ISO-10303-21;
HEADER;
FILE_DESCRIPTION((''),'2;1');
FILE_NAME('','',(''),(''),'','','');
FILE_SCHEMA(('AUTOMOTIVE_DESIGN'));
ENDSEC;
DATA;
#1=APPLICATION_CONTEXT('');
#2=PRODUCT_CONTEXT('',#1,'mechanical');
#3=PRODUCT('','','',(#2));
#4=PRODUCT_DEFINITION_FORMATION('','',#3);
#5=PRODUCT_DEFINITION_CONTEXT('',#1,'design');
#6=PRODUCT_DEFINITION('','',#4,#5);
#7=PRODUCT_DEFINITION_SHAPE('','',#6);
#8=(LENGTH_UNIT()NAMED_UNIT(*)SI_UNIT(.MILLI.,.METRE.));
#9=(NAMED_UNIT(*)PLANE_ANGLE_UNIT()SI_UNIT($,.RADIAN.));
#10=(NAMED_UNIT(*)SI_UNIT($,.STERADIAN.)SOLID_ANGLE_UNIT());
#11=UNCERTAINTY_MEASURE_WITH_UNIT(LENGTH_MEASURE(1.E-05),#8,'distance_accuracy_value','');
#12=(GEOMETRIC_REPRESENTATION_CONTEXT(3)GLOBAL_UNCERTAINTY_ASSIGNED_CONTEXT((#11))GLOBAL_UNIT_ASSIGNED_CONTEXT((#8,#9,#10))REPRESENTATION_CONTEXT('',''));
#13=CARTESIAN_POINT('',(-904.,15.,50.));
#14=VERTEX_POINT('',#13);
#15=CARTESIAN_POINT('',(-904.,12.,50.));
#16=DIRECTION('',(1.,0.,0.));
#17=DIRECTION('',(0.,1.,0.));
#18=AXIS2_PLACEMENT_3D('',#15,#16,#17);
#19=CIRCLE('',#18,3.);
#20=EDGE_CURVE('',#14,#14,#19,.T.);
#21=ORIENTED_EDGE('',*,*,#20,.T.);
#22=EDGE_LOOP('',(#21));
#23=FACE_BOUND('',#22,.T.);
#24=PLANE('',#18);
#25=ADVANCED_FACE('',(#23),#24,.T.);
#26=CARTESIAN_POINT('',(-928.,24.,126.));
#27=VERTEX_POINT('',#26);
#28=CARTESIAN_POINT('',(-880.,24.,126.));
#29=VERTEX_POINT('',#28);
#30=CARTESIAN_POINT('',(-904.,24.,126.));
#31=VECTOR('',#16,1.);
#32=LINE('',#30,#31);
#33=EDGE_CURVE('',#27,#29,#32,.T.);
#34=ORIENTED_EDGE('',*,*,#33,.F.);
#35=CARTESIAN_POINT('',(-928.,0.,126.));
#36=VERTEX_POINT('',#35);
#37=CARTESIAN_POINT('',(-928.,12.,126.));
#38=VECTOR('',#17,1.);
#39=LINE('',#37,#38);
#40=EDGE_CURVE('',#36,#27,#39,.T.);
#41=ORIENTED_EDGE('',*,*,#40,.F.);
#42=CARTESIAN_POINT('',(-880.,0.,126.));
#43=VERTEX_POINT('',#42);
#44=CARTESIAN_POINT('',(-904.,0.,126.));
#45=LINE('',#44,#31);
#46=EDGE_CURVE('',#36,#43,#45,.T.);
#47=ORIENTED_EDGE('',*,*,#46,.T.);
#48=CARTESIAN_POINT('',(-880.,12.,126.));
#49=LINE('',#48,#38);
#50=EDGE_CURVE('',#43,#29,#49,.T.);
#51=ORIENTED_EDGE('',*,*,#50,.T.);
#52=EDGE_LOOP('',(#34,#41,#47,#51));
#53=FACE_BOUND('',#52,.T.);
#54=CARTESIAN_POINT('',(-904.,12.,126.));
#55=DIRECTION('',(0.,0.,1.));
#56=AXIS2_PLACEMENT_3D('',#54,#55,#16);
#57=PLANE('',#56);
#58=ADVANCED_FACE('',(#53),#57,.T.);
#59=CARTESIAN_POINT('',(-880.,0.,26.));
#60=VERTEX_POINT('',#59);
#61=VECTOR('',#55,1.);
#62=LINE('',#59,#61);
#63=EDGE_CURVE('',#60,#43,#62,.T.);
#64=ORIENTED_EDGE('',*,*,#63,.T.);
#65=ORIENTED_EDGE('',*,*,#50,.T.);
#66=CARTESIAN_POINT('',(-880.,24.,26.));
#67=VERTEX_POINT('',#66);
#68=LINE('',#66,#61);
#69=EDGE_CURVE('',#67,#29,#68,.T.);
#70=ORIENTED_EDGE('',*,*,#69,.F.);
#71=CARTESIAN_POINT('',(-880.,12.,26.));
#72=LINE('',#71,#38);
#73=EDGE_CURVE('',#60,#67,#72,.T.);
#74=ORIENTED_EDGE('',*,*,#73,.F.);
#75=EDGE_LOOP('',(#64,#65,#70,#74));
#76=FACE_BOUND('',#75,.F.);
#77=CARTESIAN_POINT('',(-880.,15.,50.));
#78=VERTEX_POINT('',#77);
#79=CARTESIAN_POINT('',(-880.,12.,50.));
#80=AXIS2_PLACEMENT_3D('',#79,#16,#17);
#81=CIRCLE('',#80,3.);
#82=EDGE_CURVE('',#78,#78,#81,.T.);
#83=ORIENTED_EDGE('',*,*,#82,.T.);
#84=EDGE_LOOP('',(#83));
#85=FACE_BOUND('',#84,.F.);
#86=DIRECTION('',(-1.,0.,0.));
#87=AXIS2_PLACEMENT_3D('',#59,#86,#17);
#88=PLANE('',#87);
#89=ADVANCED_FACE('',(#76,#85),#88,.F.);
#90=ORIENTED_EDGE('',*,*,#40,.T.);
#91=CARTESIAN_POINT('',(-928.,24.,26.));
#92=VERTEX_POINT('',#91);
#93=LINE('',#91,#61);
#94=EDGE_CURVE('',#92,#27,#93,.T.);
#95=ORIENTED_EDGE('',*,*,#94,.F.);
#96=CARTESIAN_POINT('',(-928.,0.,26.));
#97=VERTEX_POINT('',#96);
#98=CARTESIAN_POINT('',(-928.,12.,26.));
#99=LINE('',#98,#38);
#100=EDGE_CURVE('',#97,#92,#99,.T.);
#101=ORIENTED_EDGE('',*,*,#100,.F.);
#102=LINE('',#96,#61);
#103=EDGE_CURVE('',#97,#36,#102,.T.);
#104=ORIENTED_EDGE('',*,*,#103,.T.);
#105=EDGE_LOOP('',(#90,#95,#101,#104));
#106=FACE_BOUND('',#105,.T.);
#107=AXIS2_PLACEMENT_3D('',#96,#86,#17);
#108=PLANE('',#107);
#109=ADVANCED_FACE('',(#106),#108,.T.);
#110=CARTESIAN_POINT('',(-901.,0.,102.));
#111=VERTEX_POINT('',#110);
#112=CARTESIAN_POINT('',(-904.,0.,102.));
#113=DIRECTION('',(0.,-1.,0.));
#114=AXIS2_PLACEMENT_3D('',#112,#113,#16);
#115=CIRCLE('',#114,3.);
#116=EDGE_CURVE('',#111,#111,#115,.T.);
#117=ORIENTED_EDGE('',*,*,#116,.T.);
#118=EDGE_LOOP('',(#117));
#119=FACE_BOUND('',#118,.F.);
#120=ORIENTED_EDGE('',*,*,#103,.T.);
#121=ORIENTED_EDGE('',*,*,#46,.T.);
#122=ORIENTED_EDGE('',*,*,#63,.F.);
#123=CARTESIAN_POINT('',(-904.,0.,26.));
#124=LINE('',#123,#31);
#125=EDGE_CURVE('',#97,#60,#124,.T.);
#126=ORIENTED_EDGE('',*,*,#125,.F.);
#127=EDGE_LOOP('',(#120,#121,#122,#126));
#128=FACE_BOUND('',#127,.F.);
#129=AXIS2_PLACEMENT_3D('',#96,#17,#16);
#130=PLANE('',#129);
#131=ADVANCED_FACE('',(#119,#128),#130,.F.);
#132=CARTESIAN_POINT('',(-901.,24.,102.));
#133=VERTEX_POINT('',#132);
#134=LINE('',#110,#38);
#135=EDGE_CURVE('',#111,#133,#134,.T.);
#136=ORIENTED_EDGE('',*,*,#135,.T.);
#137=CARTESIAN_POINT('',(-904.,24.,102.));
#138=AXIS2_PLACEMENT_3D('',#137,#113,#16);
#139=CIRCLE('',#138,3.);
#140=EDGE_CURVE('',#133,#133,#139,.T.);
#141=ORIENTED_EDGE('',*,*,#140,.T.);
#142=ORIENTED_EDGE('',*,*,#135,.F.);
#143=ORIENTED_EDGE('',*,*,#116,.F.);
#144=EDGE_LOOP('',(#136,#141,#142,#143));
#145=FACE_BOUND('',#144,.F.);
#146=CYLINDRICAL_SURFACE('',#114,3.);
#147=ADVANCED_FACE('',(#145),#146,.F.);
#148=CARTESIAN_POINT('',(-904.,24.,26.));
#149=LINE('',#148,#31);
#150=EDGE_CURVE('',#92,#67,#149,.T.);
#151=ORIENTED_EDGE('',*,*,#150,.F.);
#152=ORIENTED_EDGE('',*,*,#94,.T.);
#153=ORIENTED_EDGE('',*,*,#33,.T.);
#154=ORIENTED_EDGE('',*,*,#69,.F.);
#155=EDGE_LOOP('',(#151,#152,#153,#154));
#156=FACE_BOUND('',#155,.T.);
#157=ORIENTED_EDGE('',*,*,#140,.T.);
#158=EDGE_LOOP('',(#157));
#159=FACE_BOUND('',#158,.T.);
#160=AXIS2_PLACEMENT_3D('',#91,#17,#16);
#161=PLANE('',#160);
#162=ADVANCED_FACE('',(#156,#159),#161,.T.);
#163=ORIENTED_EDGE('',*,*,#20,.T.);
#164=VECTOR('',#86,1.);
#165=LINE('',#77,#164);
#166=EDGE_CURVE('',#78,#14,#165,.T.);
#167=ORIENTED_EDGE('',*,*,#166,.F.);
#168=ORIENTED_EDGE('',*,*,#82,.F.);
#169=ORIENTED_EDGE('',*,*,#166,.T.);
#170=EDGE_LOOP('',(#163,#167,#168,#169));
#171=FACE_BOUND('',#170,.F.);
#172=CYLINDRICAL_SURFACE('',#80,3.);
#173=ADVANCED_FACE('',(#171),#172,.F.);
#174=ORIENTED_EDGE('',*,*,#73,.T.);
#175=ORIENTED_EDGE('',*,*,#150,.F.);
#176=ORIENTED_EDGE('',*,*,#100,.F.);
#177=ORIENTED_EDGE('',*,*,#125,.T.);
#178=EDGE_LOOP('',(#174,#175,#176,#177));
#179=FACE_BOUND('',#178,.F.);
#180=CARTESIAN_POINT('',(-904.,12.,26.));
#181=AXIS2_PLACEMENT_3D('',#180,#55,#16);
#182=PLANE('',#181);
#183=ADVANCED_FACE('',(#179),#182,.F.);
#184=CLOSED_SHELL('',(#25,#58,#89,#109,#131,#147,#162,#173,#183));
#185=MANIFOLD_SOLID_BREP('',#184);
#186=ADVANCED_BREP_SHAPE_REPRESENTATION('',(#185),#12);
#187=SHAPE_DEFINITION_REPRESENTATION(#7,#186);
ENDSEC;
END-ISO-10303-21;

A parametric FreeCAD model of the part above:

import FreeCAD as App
import Part
import Sketcher
Q = App.Units.Quantity

doc = App.newDocument("Part")
body = doc.addObject("PartDesign::Body", "Body")

# Sketch on XY plane
sketch1 = body.newObject("Sketcher::SketchObject", "Sketch")
sketch1.AttachmentSupport = (doc.getObject("XY_Plane"), [""])
sketch1.MapMode = "FlatFace"
sketch1.addGeometry([
    Part.LineSegment(App.Vector(0, 24, 0), App.Vector(0, 0, 0)),
    Part.LineSegment(App.Vector(0, 0, 0), App.Vector(48, 0, 0)),
    Part.LineSegment(App.Vector(48, 0, 0), App.Vector(48, 24, 0)),
    Part.LineSegment(App.Vector(48, 24, 0), App.Vector(0, 24, 0)),
], False)
sketch1.addConstraint([
    Sketcher.Constraint("Coincident", 0, 2, 1, 1),
    Sketcher.Constraint("Coincident", 1, 2, 2, 1),
    Sketcher.Constraint("Coincident", 2, 2, 3, 1),
    Sketcher.Constraint("Coincident", 3, 2, 0, 1),
    Sketcher.Constraint("Vertical", 0),
    Sketcher.Constraint("Horizontal", 1),
    Sketcher.Constraint("Vertical", 2),
    Sketcher.Constraint("Horizontal", 3),
    Sketcher.Constraint("Coincident", 0, 2, -1, 1),
    Sketcher.Constraint("DistanceX", 1, 1, 1, 2, Q("48 mm")),
    Sketcher.Constraint("DistanceY", 0, 2, 0, 1, Q("24 mm")),
])
pad1 = body.newObject("PartDesign::Pad", "Pad")
pad1.Profile = sketch1
pad1.Length = 100

# Sketch on YZ plane
sketch2 = body.newObject("Sketcher::SketchObject", "Sketch001")
sketch2.AttachmentSupport = (doc.getObject("YZ_Plane"), [""])
sketch2.MapMode = "FlatFace"
sketch2.AttachmentOffset = App.Placement(App.Vector(0, 0, 48), App.Rotation())
sketch2.addGeometry(Part.Circle(App.Vector(12, 24, 0), App.Vector(0, 0, 1), 3), False)
sketch2.addConstraint([
    Sketcher.Constraint("Diameter", 0, Q("6 mm")),
    Sketcher.Constraint("DistanceX", -1, 1, 0, 3, Q("12 mm")),
    Sketcher.Constraint("DistanceY", -1, 1, 0, 3, Q("24 mm")),
])
pocket1 = body.newObject("PartDesign::Pocket", "Pocket")
pocket1.Profile = sketch2
pocket1.Length = 24

# Sketch on XZ plane
sketch3 = body.newObject("Sketcher::SketchObject", "Sketch002")
sketch3.AttachmentSupport = (doc.getObject("XZ_Plane"), [""])
sketch3.MapMode = "FlatFace"
sketch3.addGeometry(Part.Circle(App.Vector(24, 76, 0), App.Vector(0, 0, 1), 3), False)
sketch3.addConstraint([
    Sketcher.Constraint("Diameter", 0, Q("6 mm")),
    Sketcher.Constraint("DistanceX", -1, 1, 0, 3, Q("24 mm")),
    Sketcher.Constraint("DistanceY", -1, 1, 0, 3, Q("76 mm")),
])
pocket2 = body.newObject("PartDesign::Pocket", "Pocket001")
pocket2.Profile = sketch3
pocket2.Type = "ThroughAll"
body2 = doc.addObject("PartDesign::Body", "Body001")
doc.recompute()

body.Placement = App.Placement(App.Vector(-928, 0, 26), App.Rotation(App.Vector(0, 0, 1), 0))
boolean = body2.newObject("PartDesign::Boolean", "Boolean")
boolean.Type = "Fuse"
boolean.addObjects([body])

doc.recompute()
